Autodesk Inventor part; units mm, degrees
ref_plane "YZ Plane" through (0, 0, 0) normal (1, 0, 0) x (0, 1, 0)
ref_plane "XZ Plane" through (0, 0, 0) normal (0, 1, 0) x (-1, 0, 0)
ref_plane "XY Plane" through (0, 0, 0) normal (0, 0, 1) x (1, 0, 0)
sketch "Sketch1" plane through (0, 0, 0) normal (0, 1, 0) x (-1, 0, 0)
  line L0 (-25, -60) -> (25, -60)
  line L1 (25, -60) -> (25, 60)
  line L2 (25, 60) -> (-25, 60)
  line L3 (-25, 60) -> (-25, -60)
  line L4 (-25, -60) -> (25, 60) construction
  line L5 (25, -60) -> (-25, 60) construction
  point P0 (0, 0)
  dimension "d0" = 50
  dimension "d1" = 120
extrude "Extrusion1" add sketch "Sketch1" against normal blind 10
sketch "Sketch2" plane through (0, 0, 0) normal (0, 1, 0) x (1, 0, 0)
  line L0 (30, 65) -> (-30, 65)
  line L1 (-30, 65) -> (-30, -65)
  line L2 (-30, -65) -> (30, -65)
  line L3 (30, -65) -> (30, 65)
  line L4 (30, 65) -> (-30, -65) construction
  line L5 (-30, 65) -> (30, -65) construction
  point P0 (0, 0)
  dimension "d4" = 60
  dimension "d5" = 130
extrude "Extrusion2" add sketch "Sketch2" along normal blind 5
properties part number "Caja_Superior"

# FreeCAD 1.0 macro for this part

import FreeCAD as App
import Part
import Sketcher
from FreeCAD import Vector


def add_polygon(sketch, points):
    """Adds a closed chain of lines whose ends are joined by coincident constraints."""
    first, n = sketch.GeometryCount, len(points)
    for a, b in zip(points, points[1:] + points[:1]):
        sketch.addGeometry(Part.LineSegment(App.Vector(*a, 0), App.Vector(*b, 0)), False)
    for i in range(n):
        sketch.addConstraint(Sketcher.Constraint("Coincident", first + i, 2, first + (i + 1) % n, 1))

doc = App.newDocument("Part")
body = doc.addObject("PartDesign::Body", "Body")

# Sketch on XZ plane
sketch1 = body.newObject("Sketcher::SketchObject", "Sketch")
sketch1.AttachmentSupport = (doc.getObject("XZ_Plane"), [""])
sketch1.MapMode = "FlatFace"
add_polygon(sketch1, [(25, 60), (25, -60), (-25, -60), (-25, 60)])  # lines 0-3
sketch1.addConstraint(Sketcher.Constraint("Vertical", 0))
sketch1.addConstraint(Sketcher.Constraint("Horizontal", 1))
sketch1.addConstraint(Sketcher.Constraint("Vertical", 2))
sketch1.addConstraint(Sketcher.Constraint("Horizontal", 3))
sketch1.addConstraint(Sketcher.Constraint("Symmetric", 0, 2, 2, 2, -1, 1))
sketch1.addConstraint(Sketcher.Constraint("DistanceX", 1, 2, 1, 1, 50.0))
sketch1.addConstraint(Sketcher.Constraint("DistanceY", 0, 2, 0, 1, 120.0))
pad1 = body.newObject("PartDesign::Pad", "Pad")
pad1.Profile = sketch1
pad1.Length = 10

# Sketch on XZ plane
sketch2 = body.newObject("Sketcher::SketchObject", "Sketch001")
sketch2.AttachmentSupport = (doc.getObject("XZ_Plane"), [""])
sketch2.MapMode = "FlatFace"
add_polygon(sketch2, [(30, 65), (30, -65), (-30, -65), (-30, 65)])  # lines 0-3
sketch2.addConstraint(Sketcher.Constraint("Vertical", 0))
sketch2.addConstraint(Sketcher.Constraint("Horizontal", 1))
sketch2.addConstraint(Sketcher.Constraint("Vertical", 2))
sketch2.addConstraint(Sketcher.Constraint("Horizontal", 3))
sketch2.addConstraint(Sketcher.Constraint("Symmetric", 0, 2, 2, 2, -1, 1))
sketch2.addConstraint(Sketcher.Constraint("DistanceX", 1, 2, 1, 1, 60.0))
sketch2.addConstraint(Sketcher.Constraint("DistanceY", 0, 2, 0, 1, 130.0))
pad2 = body.newObject("PartDesign::Pad", "Pad001")
pad2.Profile = sketch2
pad2.Length = 5
pad2.Reversed = True

doc.recompute()
